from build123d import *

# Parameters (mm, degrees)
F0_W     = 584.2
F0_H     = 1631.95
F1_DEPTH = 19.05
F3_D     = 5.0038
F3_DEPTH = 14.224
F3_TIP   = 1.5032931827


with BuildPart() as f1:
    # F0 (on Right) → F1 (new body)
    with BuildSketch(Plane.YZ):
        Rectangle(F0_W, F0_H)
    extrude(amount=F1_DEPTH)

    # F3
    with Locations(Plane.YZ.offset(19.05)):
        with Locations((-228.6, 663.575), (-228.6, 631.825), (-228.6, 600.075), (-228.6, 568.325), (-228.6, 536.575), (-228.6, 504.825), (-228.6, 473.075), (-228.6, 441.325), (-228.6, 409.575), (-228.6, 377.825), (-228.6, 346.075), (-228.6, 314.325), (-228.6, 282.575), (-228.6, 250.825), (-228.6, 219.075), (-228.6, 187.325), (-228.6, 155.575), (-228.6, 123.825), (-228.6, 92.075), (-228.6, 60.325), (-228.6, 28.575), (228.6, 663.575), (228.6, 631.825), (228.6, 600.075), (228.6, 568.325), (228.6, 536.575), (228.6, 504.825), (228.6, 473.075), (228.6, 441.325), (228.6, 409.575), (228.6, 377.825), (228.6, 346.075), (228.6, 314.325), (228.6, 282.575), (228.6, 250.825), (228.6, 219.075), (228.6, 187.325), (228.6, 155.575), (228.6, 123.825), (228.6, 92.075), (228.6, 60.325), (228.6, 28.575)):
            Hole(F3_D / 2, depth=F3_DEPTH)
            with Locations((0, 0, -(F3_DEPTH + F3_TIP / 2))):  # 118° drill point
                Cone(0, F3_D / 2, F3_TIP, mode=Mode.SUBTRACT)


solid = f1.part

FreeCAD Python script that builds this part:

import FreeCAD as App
import Part
import Sketcher

V = App.Vector
Q = App.Units.Quantity

doc = App.newDocument("Part")
body = doc.addObject("PartDesign::Body", "Body")

sketch1 = body.newObject("Sketcher::SketchObject", "Sketch")
sketch1.AttachmentSupport = (doc.getObject("YZ_Plane"), [""])
sketch1.MapMode = "FlatFace"
sketch1.addGeometry(Part.LineSegment(V(-292, 816, 0), V(-292, -816, 0)), False)
sketch1.addGeometry(Part.LineSegment(V(-292, -816, 0), V(292, -816, 0)), False)
sketch1.addGeometry(Part.LineSegment(V(292, -816, 0), V(292, 816, 0)), False)
sketch1.addGeometry(Part.LineSegment(V(292, 816, 0), V(-292, 816, 0)), False)
sketch1.addConstraint(Sketcher.Constraint("Coincident", 0, 2, 1, 1))
sketch1.addConstraint(Sketcher.Constraint("Coincident", 1, 2, 2, 1))
sketch1.addConstraint(Sketcher.Constraint("Coincident", 2, 2, 3, 1))
sketch1.addConstraint(Sketcher.Constraint("Coincident", 3, 2, 0, 1))
sketch1.addConstraint(Sketcher.Constraint("Vertical", 0))
sketch1.addConstraint(Sketcher.Constraint("Horizontal", 1))
sketch1.addConstraint(Sketcher.Constraint("Vertical", 2))
sketch1.addConstraint(Sketcher.Constraint("Horizontal", 3))
sketch1.addConstraint(Sketcher.Constraint("Symmetric", 0, 2, 2, 2, -1, 1))
sketch1.addConstraint(Sketcher.Constraint("DistanceX", 1, 1, 1, 2, Q("23 in")))
sketch1.addConstraint(Sketcher.Constraint("DistanceY", 0, 2, 0, 1, Q("64.25 in")))
pad1 = body.newObject("PartDesign::Pad", "Pad")
pad1.Profile = sketch1
pad1.Length = Q("0.75 in")

sketch2 = body.newObject("Sketcher::SketchObject", "Sketch001")
sketch2.AttachmentSupport = (doc.getObject("YZ_Plane"), [""])
sketch2.MapMode = "FlatFace"
sketch2.AttachmentOffset = App.Placement(V(0, 0, 0.75 * 25.4), App.Rotation())
sketch2.addGeometry(Part.Circle(V(-228.6, 663.6, 0), V(0, 0, 1), 2.5), False)
sketch2.addGeometry(Part.Circle(V(-228.6, 631.8, 0), V(0, 0, 1), 2.5), False)
sketch2.addGeometry(Part.Circle(V(-228.6, 600.1, 0), V(0, 0, 1), 2.5), False)
sketch2.addGeometry(Part.Circle(V(-228.6, 568.3, 0), V(0, 0, 1), 2.5), False)
sketch2.addGeometry(Part.Circle(V(-228.6, 536.6, 0), V(0, 0, 1), 2.5), False)
sketch2.addGeometry(Part.Circle(V(-228.6, 504.8, 0), V(0, 0, 1), 2.5), False)
sketch2.addGeometry(Part.Circle(V(-228.6, 473.1, 0), V(0, 0, 1), 2.5), False)
sketch2.addGeometry(Part.Circle(V(-228.6, 441.3, 0), V(0, 0, 1), 2.5), False)
sketch2.addGeometry(Part.Circle(V(-228.6, 409.6, 0), V(0, 0, 1), 2.5), False)
sketch2.addGeometry(Part.Circle(V(-228.6, 377.8, 0), V(0, 0, 1), 2.5), False)
sketch2.addGeometry(Part.Circle(V(-228.6, 346.1, 0), V(0, 0, 1), 2.5), False)
sketch2.addGeometry(Part.Circle(V(-228.6, 314.3, 0), V(0, 0, 1), 2.5), False)
sketch2.addGeometry(Part.Circle(V(-228.6, 282.6, 0), V(0, 0, 1), 2.5), False)
sketch2.addGeometry(Part.Circle(V(-228.6, 250.8, 0), V(0, 0, 1), 2.5), False)
sketch2.addGeometry(Part.Circle(V(-228.6, 219.1, 0), V(0, 0, 1), 2.5), False)
sketch2.addGeometry(Part.Circle(V(-228.6, 187.3, 0), V(0, 0, 1), 2.5), False)
sketch2.addGeometry(Part.Circle(V(-228.6, 155.6, 0), V(0, 0, 1), 2.5), False)
sketch2.addGeometry(Part.Circle(V(-228.6, 123.8, 0), V(0, 0, 1), 2.5), False)
sketch2.addGeometry(Part.Circle(V(-228.6, 92.1, 0), V(0, 0, 1), 2.5), False)
sketch2.addGeometry(Part.Circle(V(-228.6, 60.3, 0), V(0, 0, 1), 2.5), False)
sketch2.addGeometry(Part.Circle(V(-228.6, 28.6, 0), V(0, 0, 1), 2.5), False)
sketch2.addGeometry(Part.Circle(V(228.6, 663.6, 0), V(0, 0, 1), 2.5), False)
sketch2.addGeometry(Part.Circle(V(228.6, 631.8, 0), V(0, 0, 1), 2.5), False)
sketch2.addGeometry(Part.Circle(V(228.6, 600.1, 0), V(0, 0, 1), 2.5), False)
sketch2.addGeometry(Part.Circle(V(228.6, 568.3, 0), V(0, 0, 1), 2.5), False)
sketch2.addGeometry(Part.Circle(V(228.6, 536.6, 0), V(0, 0, 1), 2.5), False)
sketch2.addGeometry(Part.Circle(V(228.6, 504.8, 0), V(0, 0, 1), 2.5), False)
sketch2.addGeometry(Part.Circle(V(228.6, 473.1, 0), V(0, 0, 1), 2.5), False)
sketch2.addGeometry(Part.Circle(V(228.6, 441.3, 0), V(0, 0, 1), 2.5), False)
sketch2.addGeometry(Part.Circle(V(228.6, 409.6, 0), V(0, 0, 1), 2.5), False)
sketch2.addGeometry(Part.Circle(V(228.6, 377.8, 0), V(0, 0, 1), 2.5), False)
sketch2.addGeometry(Part.Circle(V(228.6, 346.1, 0), V(0, 0, 1), 2.5), False)
sketch2.addGeometry(Part.Circle(V(228.6, 314.3, 0), V(0, 0, 1), 2.5), False)
sketch2.addGeometry(Part.Circle(V(228.6, 282.6, 0), V(0, 0, 1), 2.5), False)
sketch2.addGeometry(Part.Circle(V(228.6, 250.8, 0), V(0, 0, 1), 2.5), False)
sketch2.addGeometry(Part.Circle(V(228.6, 219.1, 0), V(0, 0, 1), 2.5), False)
sketch2.addGeometry(Part.Circle(V(228.6, 187.3, 0), V(0, 0, 1), 2.5), False)
sketch2.addGeometry(Part.Circle(V(228.6, 155.6, 0), V(0, 0, 1), 2.5), False)
sketch2.addGeometry(Part.Circle(V(228.6, 123.8, 0), V(0, 0, 1), 2.5), False)
sketch2.addGeometry(Part.Circle(V(228.6, 92.1, 0), V(0, 0, 1), 2.5), False)
sketch2.addGeometry(Part.Circle(V(228.6, 60.3, 0), V(0, 0, 1), 2.5), False)
sketch2.addGeometry(Part.Circle(V(228.6, 28.6, 0), V(0, 0, 1), 2.5), False)
sketch2.addConstraint(Sketcher.Constraint("Equal", 0, 1))
sketch2.addConstraint(Sketcher.Constraint("Equal", 1, 2))
sketch2.addConstraint(Sketcher.Constraint("Equal", 2, 3))
sketch2.addConstraint(Sketcher.Constraint("Equal", 3, 4))
sketch2.addConstraint(Sketcher.Constraint("Equal", 4, 5))
sketch2.addConstraint(Sketcher.Constraint("Equal", 5, 6))
sketch2.addConstraint(Sketcher.Constraint("Equal", 6, 7))
sketch2.addConstraint(Sketcher.Constraint("Equal", 7, 8))
sketch2.addConstraint(Sketcher.Constraint("Equal", 8, 9))
sketch2.addConstraint(Sketcher.Constraint("Equal", 9, 10))
sketch2.addConstraint(Sketcher.Constraint("Equal", 10, 11))
sketch2.addConstraint(Sketcher.Constraint("Equal", 11, 12))
sketch2.addConstraint(Sketcher.Constraint("Equal", 12, 13))
sketch2.addConstraint(Sketcher.Constraint("Equal", 13, 14))
sketch2.addConstraint(Sketcher.Constraint("Equal", 14, 15))
sketch2.addConstraint(Sketcher.Constraint("Equal", 15, 16))
sketch2.addConstraint(Sketcher.Constraint("Equal", 16, 17))
sketch2.addConstraint(Sketcher.Constraint("Equal", 17, 18))
sketch2.addConstraint(Sketcher.Constraint("Equal", 18, 19))
sketch2.addConstraint(Sketcher.Constraint("Equal", 19, 20))
sketch2.addConstraint(Sketcher.Constraint("Equal", 20, 21))
sketch2.addConstraint(Sketcher.Constraint("Equal", 21, 22))
sketch2.addConstraint(Sketcher.Constraint("Equal", 22, 23))
sketch2.addConstraint(Sketcher.Constraint("Equal", 23, 24))
sketch2.addConstraint(Sketcher.Constraint("Equal", 24, 25))
sketch2.addConstraint(Sketcher.Constraint("Equal", 25, 26))
sketch2.addConstraint(Sketcher.Constraint("Equal", 26, 27))
sketch2.addConstraint(Sketcher.Constraint("Equal", 27, 28))
sketch2.addConstraint(Sketcher.Constraint("Equal", 28, 29))
sketch2.addConstraint(Sketcher.Constraint("Equal", 29, 30))
sketch2.addConstraint(Sketcher.Constraint("Equal", 30, 31))
sketch2.addConstraint(Sketcher.Constraint("Equal", 31, 32))
sketch2.addConstraint(Sketcher.Constraint("Equal", 32, 33))
sketch2.addConstraint(Sketcher.Constraint("Equal", 33, 34))
sketch2.addConstraint(Sketcher.Constraint("Equal", 34, 35))
sketch2.addConstraint(Sketcher.Constraint("Equal", 35, 36))
sketch2.addConstraint(Sketcher.Constraint("Equal", 36, 37))
sketch2.addConstraint(Sketcher.Constraint("Equal", 37, 38))
sketch2.addConstraint(Sketcher.Constraint("Equal", 38, 39))
sketch2.addConstraint(Sketcher.Constraint("Equal", 39, 40))
sketch2.addConstraint(Sketcher.Constraint("Equal", 40, 41))
sketch2.addConstraint(Sketcher.Constraint("Symmetric", 0, 3, 21, 3, -2))
sketch2.addConstraint(Sketcher.Constraint("Symmetric", 1, 3, 22, 3, -2))
sketch2.addConstraint(Sketcher.Constraint("Symmetric", 2, 3, 23, 3, -2))
sketch2.addConstraint(Sketcher.Constraint("Symmetric", 3, 3, 24, 3, -2))
sketch2.addConstraint(Sketcher.Constraint("Symmetric", 4, 3, 25, 3, -2))
sketch2.addConstraint(Sketcher.Constraint("Symmetric", 5, 3, 26, 3, -2))
sketch2.addConstraint(Sketcher.Constraint("Symmetric", 6, 3, 27, 3, -2))
sketch2.addConstraint(Sketcher.Constraint("Symmetric", 7, 3, 28, 3, -2))
sketch2.addConstraint(Sketcher.Constraint("Symmetric", 8, 3, 29, 3, -2))
sketch2.addConstraint(Sketcher.Constraint("Symmetric", 9, 3, 30, 3, -2))
sketch2.addConstraint(Sketcher.Constraint("Symmetric", 10, 3, 31, 3, -2))
sketch2.addConstraint(Sketcher.Constraint("Symmetric", 11, 3, 32, 3, -2))
sketch2.addConstraint(Sketcher.Constraint("Symmetric", 12, 3, 33, 3, -2))
sketch2.addConstraint(Sketcher.Constraint("Symmetric", 13, 3, 34, 3, -2))
sketch2.addConstraint(Sketcher.Constraint("Symmetric", 14, 3, 35, 3, -2))
sketch2.addConstraint(Sketcher.Constraint("Symmetric", 15, 3, 36, 3, -2))
sketch2.addConstraint(Sketcher.Constraint("Symmetric", 16, 3, 37, 3, -2))
sketch2.addConstraint(Sketcher.Constraint("Symmetric", 17, 3, 38, 3, -2))
sketch2.addConstraint(Sketcher.Constraint("Symmetric", 18, 3, 39, 3, -2))
sketch2.addConstraint(Sketcher.Constraint("Symmetric", 19, 3, 40, 3, -2))
sketch2.addConstraint(Sketcher.Constraint("Symmetric", 20, 3, 41, 3, -2))
sketch2.addConstraint(Sketcher.Constraint("Vertical", 0, 3, 1, 3))
sketch2.addConstraint(Sketcher.Constraint("Vertical", 1, 3, 2, 3))
sketch2.addConstraint(Sketcher.Constraint("Vertical", 2, 3, 3, 3))
sketch2.addConstraint(Sketcher.Constraint("Vertical", 3, 3, 4, 3))
sketch2.addConstraint(Sketcher.Constraint("Vertical", 4, 3, 5, 3))
sketch2.addConstraint(Sketcher.Constraint("Vertical", 5, 3, 6, 3))
sketch2.addConstraint(Sketcher.Constraint("Vertical", 6, 3, 7, 3))
sketch2.addConstraint(Sketcher.Constraint("Vertical", 7, 3, 8, 3))
sketch2.addConstraint(Sketcher.Constraint("Vertical", 8, 3, 9, 3))
sketch2.addConstraint(Sketcher.Constraint("Vertical", 9, 3, 10, 3))
sketch2.addConstraint(Sketcher.Constraint("Vertical", 10, 3, 11, 3))
sketch2.addConstraint(Sketcher.Constraint("Vertical", 11, 3, 12, 3))
sketch2.addConstraint(Sketcher.Constraint("Vertical", 12, 3, 13, 3))
sketch2.addConstraint(Sketcher.Constraint("Vertical", 13, 3, 14, 3))
sketch2.addConstraint(Sketcher.Constraint("Vertical", 14, 3, 15, 3))
sketch2.addConstraint(Sketcher.Constraint("Vertical", 15, 3, 16, 3))
sketch2.addConstraint(Sketcher.Constraint("Vertical", 16, 3, 17, 3))
sketch2.addConstraint(Sketcher.Constraint("Vertical", 17, 3, 18, 3))
sketch2.addConstraint(Sketcher.Constraint("Vertical", 18, 3, 19, 3))
sketch2.addConstraint(Sketcher.Constraint("Vertical", 19, 3, 20, 3))
sketch2.addConstraint(Sketcher.Constraint("Diameter", 0, Q("0.197 in")))
sketch2.addConstraint(Sketcher.Constraint("DistanceX", 0, 3, -1, 1, Q("9 in")))
sketch2.addConstraint(Sketcher.Constraint("DistanceY", 4, 3, 0, 3, Q("5 in")))
sketch2.addConstraint(Sketcher.Constraint("DistanceY", 5, 3, 1, 3, Q("5 in")))
sketch2.addConstraint(Sketcher.Constraint("DistanceY", 6, 3, 2, 3, Q("5 in")))
sketch2.addConstraint(Sketcher.Constraint("DistanceY", 7, 3, 3, 3, Q("5 in")))
sketch2.addConstraint(Sketcher.Constraint("DistanceY", 8, 3, 4, 3, Q("5 in")))
sketch2.addConstraint(Sketcher.Constraint("DistanceY", 9, 3, 5, 3, Q("5 in")))
sketch2.addConstraint(Sketcher.Constraint("DistanceY", 10, 3, 6, 3, Q("5 in")))
sketch2.addConstraint(Sketcher.Constraint("DistanceY", 11, 3, 7, 3, Q("5 in")))
sketch2.addConstraint(Sketcher.Constraint("DistanceY", 12, 3, 8, 3, Q("5 in")))
sketch2.addConstraint(Sketcher.Constraint("DistanceY", 13, 3, 9, 3, Q("5 in")))
sketch2.addConstraint(Sketcher.Constraint("DistanceY", 14, 3, 10, 3, Q("5 in")))
sketch2.addConstraint(Sketcher.Constraint("DistanceY", 15, 3, 11, 3, Q("5 in")))
sketch2.addConstraint(Sketcher.Constraint("DistanceY", 16, 3, 12, 3, Q("5 in")))
sketch2.addConstraint(Sketcher.Constraint("DistanceY", 17, 3, 13, 3, Q("5 in")))
sketch2.addConstraint(Sketcher.Constraint("DistanceY", 18, 3, 14, 3, Q("5 in")))
sketch2.addConstraint(Sketcher.Constraint("DistanceY", 19, 3, 15, 3, Q("5 in")))
sketch2.addConstraint(Sketcher.Constraint("DistanceY", 20, 3, 16, 3, Q("5 in")))
sketch2.addConstraint(Sketcher.Constraint("DistanceY", 2, 3, 0, 3, Q("2.5 in")))
sketch2.addConstraint(Sketcher.Constraint("DistanceY", 3, 3, 1, 3, Q("2.5 in")))
sketch2.addConstraint(Sketcher.Constraint("DistanceY", 1, 3, 0, 3, Q("1.25 in")))
sketch2.addConstraint(Sketcher.Constraint("DistanceY", -1, 1, 0, 3, Q("26.125 in")))
doc.recompute()
hole = body.newObject("PartDesign::Hole", "Hole")
hole.Profile = sketch2
hole.ThreadType = "None"
hole.Diameter = Q("0.197 in")
hole.DepthType = "Dimension"
hole.Depth = Q("0.56 in")
hole.DrillPoint = "Angled"
hole.DrillPointAngle = 118

doc.recompute()
